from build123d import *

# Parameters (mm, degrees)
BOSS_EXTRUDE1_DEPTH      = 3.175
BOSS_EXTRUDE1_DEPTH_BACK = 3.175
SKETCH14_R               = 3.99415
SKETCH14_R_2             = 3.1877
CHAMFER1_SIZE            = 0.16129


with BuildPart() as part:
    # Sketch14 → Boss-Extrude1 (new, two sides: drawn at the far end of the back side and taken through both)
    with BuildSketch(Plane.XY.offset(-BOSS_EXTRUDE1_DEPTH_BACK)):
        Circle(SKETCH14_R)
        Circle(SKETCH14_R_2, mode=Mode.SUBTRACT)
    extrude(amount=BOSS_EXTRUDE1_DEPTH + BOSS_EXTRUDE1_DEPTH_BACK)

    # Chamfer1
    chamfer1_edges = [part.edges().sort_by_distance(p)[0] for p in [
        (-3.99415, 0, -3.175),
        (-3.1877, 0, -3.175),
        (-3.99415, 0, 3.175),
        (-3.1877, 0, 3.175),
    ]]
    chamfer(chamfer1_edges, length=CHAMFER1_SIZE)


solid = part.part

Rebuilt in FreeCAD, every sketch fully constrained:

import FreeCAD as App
import Part
import Sketcher
Q = App.Units.Quantity


def edges_at(feature, points):
    """Names of the edges that pass closest to the given points."""
    edges = feature.Shape.Edges
    near = lambda p: min(range(len(edges)), key=lambda i: edges[i].distToShape(Part.Vertex(*p))[0])
    return sorted({f"Edge{near(p) + 1}" for p in points})

doc = App.newDocument("Part")
params = doc.addObject("Spreadsheet::Sheet", "Params")
for row, (alias, value) in enumerate([
    ("sketch1_diameter", "0.251 in"),
    ("pad1_length", "0.125 in"),
    ("pad1_length2", "0.125 in"),
    ("chamfer_size", "0.16129 mm"),
], start=1):
    params.set(f"A{row}", alias)
    params.set(f"B{row}", "=" + value)
    params.setAlias(f"B{row}", alias)

body = doc.addObject("PartDesign::Body", "Body")

# Sketch on XY plane
sketch1 = body.newObject("Sketcher::SketchObject", "Sketch")
sketch1.AttachmentSupport = (doc.getObject("XY_Plane"), [""])
sketch1.MapMode = "FlatFace"
sketch1.addGeometry(Part.Circle(App.Vector(0, 0, 0), App.Vector(0, 0, 1), 3.99415), False)
sketch1.addGeometry(Part.Circle(App.Vector(0, 0, 0), App.Vector(0, 0, 1), 3.1877), False)
sketch1.addConstraint(Sketcher.Constraint("Coincident", 0, 3, -1, 1))
sketch1.addConstraint(Sketcher.Constraint("Coincident", 1, 3, -1, 1))
sketch1.addConstraint(Sketcher.Constraint("Diameter", 1, Q("0.251 in")))
sketch1.addConstraint(Sketcher.Constraint("Diameter", 0, Q("0.3145 in")))
sketch1.setExpression("Constraints[2]", "Params.sketch1_diameter")
pad1 = body.newObject("PartDesign::Pad", "Pad")
pad1.Profile = sketch1
pad1.Type = "TwoLengths"
pad1.setExpression("Length", "Params.pad1_length")
pad1.setExpression("Length2", "Params.pad1_length2")
doc.recompute()

chamfer = body.newObject("PartDesign::Chamfer", "Chamfer")
chamfer.Base = (pad1, edges_at(pad1, [
    (-3.994, 0, -3.175),
    (-3.188, 0, -3.175),
    (-3.994, 0, 3.175),
    (-3.188, 0, 3.175),
]))
chamfer.setExpression("Size", "Params.chamfer_size")

doc.recompute()
